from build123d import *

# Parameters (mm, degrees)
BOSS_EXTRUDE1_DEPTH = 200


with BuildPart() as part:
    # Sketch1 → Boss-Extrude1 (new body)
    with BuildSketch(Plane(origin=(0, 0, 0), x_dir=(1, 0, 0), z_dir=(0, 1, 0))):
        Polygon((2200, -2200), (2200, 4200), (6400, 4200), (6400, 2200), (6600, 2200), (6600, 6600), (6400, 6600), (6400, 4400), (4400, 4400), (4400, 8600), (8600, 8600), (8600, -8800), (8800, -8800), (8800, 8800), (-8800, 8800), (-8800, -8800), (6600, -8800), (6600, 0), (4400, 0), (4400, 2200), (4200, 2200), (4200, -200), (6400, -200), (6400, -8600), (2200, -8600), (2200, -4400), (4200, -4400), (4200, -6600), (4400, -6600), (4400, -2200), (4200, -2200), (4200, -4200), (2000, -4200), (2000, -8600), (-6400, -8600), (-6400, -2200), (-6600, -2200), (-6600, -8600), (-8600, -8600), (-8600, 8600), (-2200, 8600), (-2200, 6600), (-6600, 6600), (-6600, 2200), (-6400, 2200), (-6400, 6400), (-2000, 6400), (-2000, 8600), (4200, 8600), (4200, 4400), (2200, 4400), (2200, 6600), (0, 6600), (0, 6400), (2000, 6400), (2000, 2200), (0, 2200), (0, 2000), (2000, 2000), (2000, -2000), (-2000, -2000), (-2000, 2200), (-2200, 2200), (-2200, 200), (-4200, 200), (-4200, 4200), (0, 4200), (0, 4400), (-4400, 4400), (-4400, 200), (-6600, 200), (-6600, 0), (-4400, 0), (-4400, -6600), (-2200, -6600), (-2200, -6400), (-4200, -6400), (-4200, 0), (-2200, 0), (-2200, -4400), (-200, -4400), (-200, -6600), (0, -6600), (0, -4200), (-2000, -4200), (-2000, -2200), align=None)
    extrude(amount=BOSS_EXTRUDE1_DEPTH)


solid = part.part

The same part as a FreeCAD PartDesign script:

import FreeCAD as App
import Part
import Sketcher

V = App.Vector

doc = App.newDocument("Part")
body = doc.addObject("PartDesign::Body", "Body")

sketch1 = doc.addObject("Sketcher::SketchObject", "Sketch")
body.addObject(sketch1)
sketch1.AttachmentSupport = (doc.XZ_Plane, [""])
sketch1.MapMode = "FlatFace"
sketch1.addGeometry(Part.LineSegment(V(2200, 2200, 0), V(2200, -4200, 0)), False)
sketch1.addGeometry(Part.LineSegment(V(2200, -4200, 0), V(6400, -4200, 0)), False)
sketch1.addGeometry(Part.LineSegment(V(6400, -4200, 0), V(6400, -2200, 0)), False)
sketch1.addGeometry(Part.LineSegment(V(6400, -2200, 0), V(6600, -2200, 0)), False)
sketch1.addGeometry(Part.LineSegment(V(6600, -2200, 0), V(6600, -6600, 0)), False)
sketch1.addGeometry(Part.LineSegment(V(6600, -6600, 0), V(6400, -6600, 0)), False)
sketch1.addGeometry(Part.LineSegment(V(6400, -6600, 0), V(6400, -4400, 0)), False)
sketch1.addGeometry(Part.LineSegment(V(6400, -4400, 0), V(4400, -4400, 0)), False)
sketch1.addGeometry(Part.LineSegment(V(4400, -4400, 0), V(4400, -8600, 0)), False)
sketch1.addGeometry(Part.LineSegment(V(4400, -8600, 0), V(8600, -8600, 0)), False)
sketch1.addGeometry(Part.LineSegment(V(8600, -8600, 0), V(8600, 8800, 0)), False)
sketch1.addGeometry(Part.LineSegment(V(8600, 8800, 0), V(8800, 8800, 0)), False)
sketch1.addGeometry(Part.LineSegment(V(8800, 8800, 0), V(8800, -8800, 0)), False)
sketch1.addGeometry(Part.LineSegment(V(8800, -8800, 0), V(-8800, -8800, 0)), False)
sketch1.addGeometry(Part.LineSegment(V(-8800, -8800, 0), V(-8800, 8800, 0)), False)
sketch1.addGeometry(Part.LineSegment(V(-8800, 8800, 0), V(6600, 8800, 0)), False)
sketch1.addGeometry(Part.LineSegment(V(6600, 8800, 0), V(6600, 0, 0)), False)
sketch1.addGeometry(Part.LineSegment(V(6600, 0, 0), V(4400, 0, 0)), False)
sketch1.addGeometry(Part.LineSegment(V(4400, 0, 0), V(4400, -2200, 0)), False)
sketch1.addGeometry(Part.LineSegment(V(4400, -2200, 0), V(4200, -2200, 0)), False)
sketch1.addGeometry(Part.LineSegment(V(4200, -2200, 0), V(4200, 200, 0)), False)
sketch1.addGeometry(Part.LineSegment(V(4200, 200, 0), V(6400, 200, 0)), False)
sketch1.addGeometry(Part.LineSegment(V(6400, 200, 0), V(6400, 8600, 0)), False)
sketch1.addGeometry(Part.LineSegment(V(6400, 8600, 0), V(2200, 8600, 0)), False)
sketch1.addGeometry(Part.LineSegment(V(2200, 8600, 0), V(2200, 4400, 0)), False)
sketch1.addGeometry(Part.LineSegment(V(2200, 4400, 0), V(4200, 4400, 0)), False)
sketch1.addGeometry(Part.LineSegment(V(4200, 4400, 0), V(4200, 6600, 0)), False)
sketch1.addGeometry(Part.LineSegment(V(4200, 6600, 0), V(4400, 6600, 0)), False)
sketch1.addGeometry(Part.LineSegment(V(4400, 6600, 0), V(4400, 2200, 0)), False)
sketch1.addGeometry(Part.LineSegment(V(4400, 2200, 0), V(4200, 2200, 0)), False)
sketch1.addGeometry(Part.LineSegment(V(4200, 2200, 0), V(4200, 4200, 0)), False)
sketch1.addGeometry(Part.LineSegment(V(4200, 4200, 0), V(2000, 4200, 0)), False)
sketch1.addGeometry(Part.LineSegment(V(2000, 4200, 0), V(2000, 8600, 0)), False)
sketch1.addGeometry(Part.LineSegment(V(2000, 8600, 0), V(-6400, 8600, 0)), False)
sketch1.addGeometry(Part.LineSegment(V(-6400, 8600, 0), V(-6400, 2200, 0)), False)
sketch1.addGeometry(Part.LineSegment(V(-6400, 2200, 0), V(-6600, 2200, 0)), False)
sketch1.addGeometry(Part.LineSegment(V(-6600, 2200, 0), V(-6600, 8600, 0)), False)
sketch1.addGeometry(Part.LineSegment(V(-6600, 8600, 0), V(-8600, 8600, 0)), False)
sketch1.addGeometry(Part.LineSegment(V(-8600, 8600, 0), V(-8600, -8600, 0)), False)
sketch1.addGeometry(Part.LineSegment(V(-8600, -8600, 0), V(-2200, -8600, 0)), False)
sketch1.addGeometry(Part.LineSegment(V(-2200, -8600, 0), V(-2200, -6600, 0)), False)
sketch1.addGeometry(Part.LineSegment(V(-2200, -6600, 0), V(-6600, -6600, 0)), False)
sketch1.addGeometry(Part.LineSegment(V(-6600, -6600, 0), V(-6600, -2200, 0)), False)
sketch1.addGeometry(Part.LineSegment(V(-6600, -2200, 0), V(-6400, -2200, 0)), False)
sketch1.addGeometry(Part.LineSegment(V(-6400, -2200, 0), V(-6400, -6400, 0)), False)
sketch1.addGeometry(Part.LineSegment(V(-6400, -6400, 0), V(-2000, -6400, 0)), False)
sketch1.addGeometry(Part.LineSegment(V(-2000, -6400, 0), V(-2000, -8600, 0)), False)
sketch1.addGeometry(Part.LineSegment(V(-2000, -8600, 0), V(4200, -8600, 0)), False)
sketch1.addGeometry(Part.LineSegment(V(4200, -8600, 0), V(4200, -4400, 0)), False)
sketch1.addGeometry(Part.LineSegment(V(4200, -4400, 0), V(2200, -4400, 0)), False)
sketch1.addGeometry(Part.LineSegment(V(2200, -4400, 0), V(2200, -6600, 0)), False)
sketch1.addGeometry(Part.LineSegment(V(2200, -6600, 0), V(0, -6600, 0)), False)
sketch1.addGeometry(Part.LineSegment(V(0, -6600, 0), V(0, -6400, 0)), False)
sketch1.addGeometry(Part.LineSegment(V(0, -6400, 0), V(2000, -6400, 0)), False)
sketch1.addGeometry(Part.LineSegment(V(2000, -6400, 0), V(2000, -2200, 0)), False)
sketch1.addGeometry(Part.LineSegment(V(2000, -2200, 0), V(0, -2200, 0)), False)
sketch1.addGeometry(Part.LineSegment(V(0, -2200, 0), V(0, -2000, 0)), False)
sketch1.addGeometry(Part.LineSegment(V(0, -2000, 0), V(2000, -2000, 0)), False)
sketch1.addGeometry(Part.LineSegment(V(2000, -2000, 0), V(2000, 2000, 0)), False)
sketch1.addGeometry(Part.LineSegment(V(2000, 2000, 0), V(-2000, 2000, 0)), False)
sketch1.addGeometry(Part.LineSegment(V(-2000, 2000, 0), V(-2000, -2200, 0)), False)
sketch1.addGeometry(Part.LineSegment(V(-2000, -2200, 0), V(-2200, -2200, 0)), False)
sketch1.addGeometry(Part.LineSegment(V(-2200, -2200, 0), V(-2200, -200, 0)), False)
sketch1.addGeometry(Part.LineSegment(V(-2200, -200, 0), V(-4200, -200, 0)), False)
sketch1.addGeometry(Part.LineSegment(V(-4200, -200, 0), V(-4200, -4200, 0)), False)
sketch1.addGeometry(Part.LineSegment(V(-4200, -4200, 0), V(0, -4200, 0)), False)
sketch1.addGeometry(Part.LineSegment(V(0, -4200, 0), V(0, -4400, 0)), False)
sketch1.addGeometry(Part.LineSegment(V(0, -4400, 0), V(-4400, -4400, 0)), False)
sketch1.addGeometry(Part.LineSegment(V(-4400, -4400, 0), V(-4400, -200, 0)), False)
sketch1.addGeometry(Part.LineSegment(V(-4400, -200, 0), V(-6600, -200, 0)), False)
sketch1.addGeometry(Part.LineSegment(V(-6600, -200, 0), V(-6600, 0, 0)), False)
sketch1.addGeometry(Part.LineSegment(V(-6600, 0, 0), V(-4400, 0, 0)), False)
sketch1.addGeometry(Part.LineSegment(V(-4400, 0, 0), V(-4400, 6600, 0)), False)
sketch1.addGeometry(Part.LineSegment(V(-4400, 6600, 0), V(-2200, 6600, 0)), False)
sketch1.addGeometry(Part.LineSegment(V(-2200, 6600, 0), V(-2200, 6400, 0)), False)
sketch1.addGeometry(Part.LineSegment(V(-2200, 6400, 0), V(-4200, 6400, 0)), False)
sketch1.addGeometry(Part.LineSegment(V(-4200, 6400, 0), V(-4200, 0, 0)), False)
sketch1.addGeometry(Part.LineSegment(V(-4200, 0, 0), V(-2200, 0, 0)), False)
sketch1.addGeometry(Part.LineSegment(V(-2200, 0, 0), V(-2200, 4400, 0)), False)
sketch1.addGeometry(Part.LineSegment(V(-2200, 4400, 0), V(-200, 4400, 0)), False)
sketch1.addGeometry(Part.LineSegment(V(-200, 4400, 0), V(-200, 6600, 0)), False)
sketch1.addGeometry(Part.LineSegment(V(-200, 6600, 0), V(0, 6600, 0)), False)
sketch1.addGeometry(Part.LineSegment(V(0, 6600, 0), V(0, 4200, 0)), False)
sketch1.addGeometry(Part.LineSegment(V(0, 4200, 0), V(-2000, 4200, 0)), False)
sketch1.addGeometry(Part.LineSegment(V(-2000, 4200, 0), V(-2000, 2200, 0)), False)
sketch1.addGeometry(Part.LineSegment(V(-2000, 2200, 0), V(2200, 2200, 0)), False)
sketch1.addConstraint(Sketcher.Constraint("Coincident", 0, 2, 1, 1))
sketch1.addConstraint(Sketcher.Constraint("Coincident", 1, 2, 2, 1))
sketch1.addConstraint(Sketcher.Constraint("Coincident", 2, 2, 3, 1))
sketch1.addConstraint(Sketcher.Constraint("Coincident", 3, 2, 4, 1))
sketch1.addConstraint(Sketcher.Constraint("Coincident", 4, 2, 5, 1))
sketch1.addConstraint(Sketcher.Constraint("Coincident", 5, 2, 6, 1))
sketch1.addConstraint(Sketcher.Constraint("Coincident", 6, 2, 7, 1))
sketch1.addConstraint(Sketcher.Constraint("Coincident", 7, 2, 8, 1))
sketch1.addConstraint(Sketcher.Constraint("Coincident", 8, 2, 9, 1))
sketch1.addConstraint(Sketcher.Constraint("Coincident", 9, 2, 10, 1))
sketch1.addConstraint(Sketcher.Constraint("Coincident", 10, 2, 11, 1))
sketch1.addConstraint(Sketcher.Constraint("Coincident", 11, 2, 12, 1))
sketch1.addConstraint(Sketcher.Constraint("Coincident", 12, 2, 13, 1))
sketch1.addConstraint(Sketcher.Constraint("Coincident", 13, 2, 14, 1))
sketch1.addConstraint(Sketcher.Constraint("Coincident", 14, 2, 15, 1))
sketch1.addConstraint(Sketcher.Constraint("Coincident", 15, 2, 16, 1))
sketch1.addConstraint(Sketcher.Constraint("Coincident", 16, 2, 17, 1))
sketch1.addConstraint(Sketcher.Constraint("Coincident", 17, 2, 18, 1))
sketch1.addConstraint(Sketcher.Constraint("Coincident", 18, 2, 19, 1))
sketch1.addConstraint(Sketcher.Constraint("Coincident", 19, 2, 20, 1))
sketch1.addConstraint(Sketcher.Constraint("Coincident", 20, 2, 21, 1))
sketch1.addConstraint(Sketcher.Constraint("Coincident", 21, 2, 22, 1))
sketch1.addConstraint(Sketcher.Constraint("Coincident", 22, 2, 23, 1))
sketch1.addConstraint(Sketcher.Constraint("Coincident", 23, 2, 24, 1))
sketch1.addConstraint(Sketcher.Constraint("Coincident", 24, 2, 25, 1))
sketch1.addConstraint(Sketcher.Constraint("Coincident", 25, 2, 26, 1))
sketch1.addConstraint(Sketcher.Constraint("Coincident", 26, 2, 27, 1))
sketch1.addConstraint(Sketcher.Constraint("Coincident", 27, 2, 28, 1))
sketch1.addConstraint(Sketcher.Constraint("Coincident", 28, 2, 29, 1))
sketch1.addConstraint(Sketcher.Constraint("Coincident", 29, 2, 30, 1))
sketch1.addConstraint(Sketcher.Constraint("Coincident", 30, 2, 31, 1))
sketch1.addConstraint(Sketcher.Constraint("Coincident", 31, 2, 32, 1))
sketch1.addConstraint(Sketcher.Constraint("Coincident", 32, 2, 33, 1))
sketch1.addConstraint(Sketcher.Constraint("Coincident", 33, 2, 34, 1))
sketch1.addConstraint(Sketcher.Constraint("Coincident", 34, 2, 35, 1))
sketch1.addConstraint(Sketcher.Constraint("Coincident", 35, 2, 36, 1))
sketch1.addConstraint(Sketcher.Constraint("Coincident", 36, 2, 37, 1))
sketch1.addConstraint(Sketcher.Constraint("Coincident", 37, 2, 38, 1))
sketch1.addConstraint(Sketcher.Constraint("Coincident", 38, 2, 39, 1))
sketch1.addConstraint(Sketcher.Constraint("Coincident", 39, 2, 40, 1))
sketch1.addConstraint(Sketcher.Constraint("Coincident", 40, 2, 41, 1))
sketch1.addConstraint(Sketcher.Constraint("Coincident", 41, 2, 42, 1))
sketch1.addConstraint(Sketcher.Constraint("Coincident", 42, 2, 43, 1))
sketch1.addConstraint(Sketcher.Constraint("Coincident", 43, 2, 44, 1))
sketch1.addConstraint(Sketcher.Constraint("Coincident", 44, 2, 45, 1))
sketch1.addConstraint(Sketcher.Constraint("Coincident", 45, 2, 46, 1))
sketch1.addConstraint(Sketcher.Constraint("Coincident", 46, 2, 47, 1))
sketch1.addConstraint(Sketcher.Constraint("Coincident", 47, 2, 48, 1))
sketch1.addConstraint(Sketcher.Constraint("Coincident", 48, 2, 49, 1))
sketch1.addConstraint(Sketcher.Constraint("Coincident", 49, 2, 50, 1))
sketch1.addConstraint(Sketcher.Constraint("Coincident", 50, 2, 51, 1))
sketch1.addConstraint(Sketcher.Constraint("Coincident", 51, 2, 52, 1))
sketch1.addConstraint(Sketcher.Constraint("Coincident", 52, 2, 53, 1))
sketch1.addConstraint(Sketcher.Constraint("Coincident", 53, 2, 54, 1))
sketch1.addConstraint(Sketcher.Constraint("Coincident", 54, 2, 55, 1))
sketch1.addConstraint(Sketcher.Constraint("Coincident", 55, 2, 56, 1))
sketch1.addConstraint(Sketcher.Constraint("Coincident", 56, 2, 57, 1))
sketch1.addConstraint(Sketcher.Constraint("Coincident", 57, 2, 58, 1))
sketch1.addConstraint(Sketcher.Constraint("Coincident", 58, 2, 59, 1))
sketch1.addConstraint(Sketcher.Constraint("Coincident", 59, 2, 60, 1))
sketch1.addConstraint(Sketcher.Constraint("Coincident", 60, 2, 61, 1))
sketch1.addConstraint(Sketcher.Constraint("Coincident", 61, 2, 62, 1))
sketch1.addConstraint(Sketcher.Constraint("Coincident", 62, 2, 63, 1))
sketch1.addConstraint(Sketcher.Constraint("Coincident", 63, 2, 64, 1))
sketch1.addConstraint(Sketcher.Constraint("Coincident", 64, 2, 65, 1))
sketch1.addConstraint(Sketcher.Constraint("Coincident", 65, 2, 66, 1))
sketch1.addConstraint(Sketcher.Constraint("Coincident", 66, 2, 67, 1))
sketch1.addConstraint(Sketcher.Constraint("Coincident", 67, 2, 68, 1))
sketch1.addConstraint(Sketcher.Constraint("Coincident", 68, 2, 69, 1))
sketch1.addConstraint(Sketcher.Constraint("Coincident", 69, 2, 70, 1))
sketch1.addConstraint(Sketcher.Constraint("Coincident", 70, 2, 71, 1))
sketch1.addConstraint(Sketcher.Constraint("Coincident", 71, 2, 72, 1))
sketch1.addConstraint(Sketcher.Constraint("Coincident", 72, 2, 73, 1))
sketch1.addConstraint(Sketcher.Constraint("Coincident", 73, 2, 74, 1))
sketch1.addConstraint(Sketcher.Constraint("Coincident", 74, 2, 75, 1))
sketch1.addConstraint(Sketcher.Constraint("Coincident", 75, 2, 76, 1))
sketch1.addConstraint(Sketcher.Constraint("Coincident", 76, 2, 77, 1))
sketch1.addConstraint(Sketcher.Constraint("Coincident", 77, 2, 78, 1))
sketch1.addConstraint(Sketcher.Constraint("Coincident", 78, 2, 79, 1))
sketch1.addConstraint(Sketcher.Constraint("Coincident", 79, 2, 80, 1))
sketch1.addConstraint(Sketcher.Constraint("Coincident", 80, 2, 81, 1))
sketch1.addConstraint(Sketcher.Constraint("Coincident", 81, 2, 82, 1))
sketch1.addConstraint(Sketcher.Constraint("Coincident", 82, 2, 83, 1))
sketch1.addConstraint(Sketcher.Constraint("Coincident", 83, 2, 84, 1))
sketch1.addConstraint(Sketcher.Constraint("Coincident", 84, 2, 85, 1))
sketch1.addConstraint(Sketcher.Constraint("Coincident", 85, 2, 0, 1))
sketch1.addConstraint(Sketcher.Constraint("Vertical", 0))
sketch1.addConstraint(Sketcher.Constraint("Horizontal", 1))
sketch1.addConstraint(Sketcher.Constraint("Vertical", 2))
sketch1.addConstraint(Sketcher.Constraint("Horizontal", 3))
sketch1.addConstraint(Sketcher.Constraint("Vertical", 4))
sketch1.addConstraint(Sketcher.Constraint("Horizontal", 5))
sketch1.addConstraint(Sketcher.Constraint("Vertical", 6))
sketch1.addConstraint(Sketcher.Constraint("Horizontal", 7))
sketch1.addConstraint(Sketcher.Constraint("Vertical", 8))
sketch1.addConstraint(Sketcher.Constraint("Horizontal", 9))
sketch1.addConstraint(Sketcher.Constraint("Vertical", 10))
sketch1.addConstraint(Sketcher.Constraint("Horizontal", 11))
sketch1.addConstraint(Sketcher.Constraint("Vertical", 12))
sketch1.addConstraint(Sketcher.Constraint("Horizontal", 13))
sketch1.addConstraint(Sketcher.Constraint("Vertical", 14))
sketch1.addConstraint(Sketcher.Constraint("Horizontal", 15))
sketch1.addConstraint(Sketcher.Constraint("Vertical", 16))
sketch1.addConstraint(Sketcher.Constraint("Horizontal", 17))
sketch1.addConstraint(Sketcher.Constraint("Vertical", 18))
sketch1.addConstraint(Sketcher.Constraint("Horizontal", 19))
sketch1.addConstraint(Sketcher.Constraint("Vertical", 20))
sketch1.addConstraint(Sketcher.Constraint("Horizontal", 21))
sketch1.addConstraint(Sketcher.Constraint("Vertical", 22))
sketch1.addConstraint(Sketcher.Constraint("Horizontal", 23))
sketch1.addConstraint(Sketcher.Constraint("Vertical", 24))
sketch1.addConstraint(Sketcher.Constraint("Horizontal", 25))
sketch1.addConstraint(Sketcher.Constraint("Vertical", 26))
sketch1.addConstraint(Sketcher.Constraint("Horizontal", 27))
sketch1.addConstraint(Sketcher.Constraint("Vertical", 28))
sketch1.addConstraint(Sketcher.Constraint("Horizontal", 29))
sketch1.addConstraint(Sketcher.Constraint("Vertical", 30))
sketch1.addConstraint(Sketcher.Constraint("Horizontal", 31))
sketch1.addConstraint(Sketcher.Constraint("Vertical", 32))
sketch1.addConstraint(Sketcher.Constraint("Horizontal", 33))
sketch1.addConstraint(Sketcher.Constraint("Vertical", 34))
sketch1.addConstraint(Sketcher.Constraint("Horizontal", 35))
sketch1.addConstraint(Sketcher.Constraint("Vertical", 36))
sketch1.addConstraint(Sketcher.Constraint("Horizontal", 37))
sketch1.addConstraint(Sketcher.Constraint("Vertical", 38))
sketch1.addConstraint(Sketcher.Constraint("Horizontal", 39))
sketch1.addConstraint(Sketcher.Constraint("Vertical", 40))
sketch1.addConstraint(Sketcher.Constraint("Horizontal", 41))
sketch1.addConstraint(Sketcher.Constraint("Vertical", 42))
sketch1.addConstraint(Sketcher.Constraint("Horizontal", 43))
sketch1.addConstraint(Sketcher.Constraint("Vertical", 44))
sketch1.addConstraint(Sketcher.Constraint("Horizontal", 45))
sketch1.addConstraint(Sketcher.Constraint("Vertical", 46))
sketch1.addConstraint(Sketcher.Constraint("Horizontal", 47))
sketch1.addConstraint(Sketcher.Constraint("Vertical", 48))
sketch1.addConstraint(Sketcher.Constraint("Horizontal", 49))
sketch1.addConstraint(Sketcher.Constraint("Vertical", 50))
sketch1.addConstraint(Sketcher.Constraint("Horizontal", 51))
sketch1.addConstraint(Sketcher.Constraint("Vertical", 52))
sketch1.addConstraint(Sketcher.Constraint("Horizontal", 53))
sketch1.addConstraint(Sketcher.Constraint("Vertical", 54))
sketch1.addConstraint(Sketcher.Constraint("Horizontal", 55))
sketch1.addConstraint(Sketcher.Constraint("Vertical", 56))
sketch1.addConstraint(Sketcher.Constraint("Horizontal", 57))
sketch1.addConstraint(Sketcher.Constraint("Vertical", 58))
sketch1.addConstraint(Sketcher.Constraint("Horizontal", 59))
sketch1.addConstraint(Sketcher.Constraint("Vertical", 60))
sketch1.addConstraint(Sketcher.Constraint("Horizontal", 61))
sketch1.addConstraint(Sketcher.Constraint("Vertical", 62))
sketch1.addConstraint(Sketcher.Constraint("Horizontal", 63))
sketch1.addConstraint(Sketcher.Constraint("Vertical", 64))
sketch1.addConstraint(Sketcher.Constraint("Horizontal", 65))
sketch1.addConstraint(Sketcher.Constraint("Vertical", 66))
sketch1.addConstraint(Sketcher.Constraint("Horizontal", 67))
sketch1.addConstraint(Sketcher.Constraint("Vertical", 68))
sketch1.addConstraint(Sketcher.Constraint("Horizontal", 69))
sketch1.addConstraint(Sketcher.Constraint("Vertical", 70))
sketch1.addConstraint(Sketcher.Constraint("Horizontal", 71))
sketch1.addConstraint(Sketcher.Constraint("Vertical", 72))
sketch1.addConstraint(Sketcher.Constraint("Horizontal", 73))
sketch1.addConstraint(Sketcher.Constraint("Vertical", 74))
sketch1.addConstraint(Sketcher.Constraint("Horizontal", 75))
sketch1.addConstraint(Sketcher.Constraint("Vertical", 76))
sketch1.addConstraint(Sketcher.Constraint("Horizontal", 77))
sketch1.addConstraint(Sketcher.Constraint("Vertical", 78))
sketch1.addConstraint(Sketcher.Constraint("Horizontal", 79))
sketch1.addConstraint(Sketcher.Constraint("Vertical", 80))
sketch1.addConstraint(Sketcher.Constraint("Horizontal", 81))
sketch1.addConstraint(Sketcher.Constraint("Vertical", 82))
sketch1.addConstraint(Sketcher.Constraint("Horizontal", 83))
sketch1.addConstraint(Sketcher.Constraint("Vertical", 84))
sketch1.addConstraint(Sketcher.Constraint("Horizontal", 85))
sketch1.addConstraint(Sketcher.Constraint("Symmetric", 11, 2, 13, 2, -1, 1))
sketch1.addConstraint(Sketcher.Constraint("Symmetric", 2, 2, 34, 2, -1, 1))
sketch1.addConstraint(Sketcher.Constraint("Symmetric", 9, 2, 37, 2, -1, 1))
sketch1.addConstraint(Sketcher.Constraint("Symmetric", 23, 2, 39, 2, -1, 1))
sketch1.addConstraint(Sketcher.Constraint("Symmetric", 32, 2, 46, 2, -1, 1))
sketch1.addConstraint(Sketcher.Constraint("Symmetric", 57, 2, 59, 2, -1, 1))
sketch1.addConstraint(Sketcher.Constraint("Symmetric", 20, 2, 63, 2, -1, 1))
sketch1.addConstraint(Sketcher.Constraint("Symmetric", 30, 2, 64, 2, -1, 1))
sketch1.addConstraint(Sketcher.Constraint("Symmetric", 16, 2, 70, 2, -1, 1))
sketch1.addConstraint(Sketcher.Constraint("Symmetric", 50, 2, 73, 2, -1, 1))
sketch1.addConstraint(Sketcher.Constraint("Symmetric", 49, 2, 78, 2, -1, 1))
sketch1.addConstraint(Sketcher.Constraint("Symmetric", 51, 2, 81, 2, -1, 1))
sketch1.addConstraint(Sketcher.Constraint("Symmetric", 65, 2, 82, 2, -1, 1))
sketch1.addConstraint(Sketcher.Constraint("Symmetric", 54, 2, 84, 2, -1, 1))
sketch1.addConstraint(Sketcher.Constraint("Symmetric", 61, 2, 85, 2, -1, 1))
sketch1.addConstraint(Sketcher.Constraint("Symmetric", 22, 2, 33, 2, -2))
sketch1.addConstraint(Sketcher.Constraint("Symmetric", 4, 2, 41, 2, -2))
sketch1.addConstraint(Sketcher.Constraint("Symmetric", 2, 2, 43, 2, -2))
sketch1.addConstraint(Sketcher.Constraint("Symmetric", 40, 2, 50, 2, -2))
sketch1.addConstraint(Sketcher.Constraint("Symmetric", 45, 2, 53, 2, -2))
sketch1.addConstraint(Sketcher.Constraint("Symmetric", 7, 2, 67, 2, -2))
sketch1.addConstraint(Sketcher.Constraint("Symmetric", 17, 2, 71, 2, -2))
sketch1.addConstraint(Sketcher.Constraint("Symmetric", 27, 2, 72, 2, -2))
sketch1.addConstraint(Sketcher.Constraint("Symmetric", 25, 2, 48, 2, -1))
sketch1.addConstraint(Sketcher.Constraint("PointOnObject", 51, 2, -2))
sketch1.addConstraint(Sketcher.Constraint("PointOnObject", 55, 2, -2))
sketch1.addConstraint(Sketcher.Constraint("PointOnObject", 76, 2, -1))
sketch1.addConstraint(Sketcher.Constraint("Horizontal", 11, 2, 14, 2))
sketch1.addConstraint(Sketcher.Constraint("Horizontal", 3, 2, 18, 2))
sketch1.addConstraint(Sketcher.Constraint("Horizontal", 29, 2, 34, 2))
sketch1.addConstraint(Sketcher.Constraint("Horizontal", 33, 2, 36, 2))
sketch1.addConstraint(Sketcher.Constraint("Horizontal", 7, 2, 48, 2))
sketch1.addConstraint(Sketcher.Constraint("Horizontal", 43, 2, 54, 2))
sketch1.addConstraint(Sketcher.Constraint("Horizontal", 1, 2, 64, 2))
sketch1.addConstraint(Sketcher.Constraint("Horizontal", 63, 2, 68, 2))
sketch1.addConstraint(Sketcher.Constraint("Vertical", 2, 2, 5, 2))
sketch1.addConstraint(Sketcher.Constraint("Vertical", 4, 2, 15, 2))
sketch1.addConstraint(Sketcher.Constraint("Vertical", 8, 2, 17, 2))
sketch1.addConstraint(Sketcher.Constraint("Vertical", 0, 2, 23, 2))
sketch1.addConstraint(Sketcher.Constraint("Vertical", 20, 2, 25, 2))
sketch1.addConstraint(Sketcher.Constraint("Vertical", 36, 2, 41, 2))
sketch1.addConstraint(Sketcher.Constraint("Vertical", 54, 2, 57, 2))
sketch1.addConstraint(Sketcher.Constraint("Vertical", 64, 2, 75, 2))
sketch1.addConstraint(Sketcher.Constraint("Equal", 1, 9))
sketch1.addConstraint(Sketcher.Constraint("Equal", 5, 11))
sketch1.addConstraint(Sketcher.Constraint("Equal", 11, 19))
sketch1.addConstraint(Sketcher.Constraint("Equal", 7, 25))
sketch1.addConstraint(Sketcher.Constraint("Equal", 21, 31))
sketch1.addConstraint(Sketcher.Constraint("Equal", 31, 51))
sketch1.addConstraint(Sketcher.Constraint("Equal", 77, 79))
sketch1.addConstraint(Sketcher.Constraint("Equal", 39, 0))
sketch1.addConstraint(Sketcher.Constraint("Equal", 83, 2))
sketch1.addConstraint(Sketcher.Constraint("Equal", 67, 4))
sketch1.addConstraint(Sketcher.Constraint("Equal", 73, 6))
sketch1.addConstraint(Sketcher.Constraint("Equal", 85, 8))
sketch1.addConstraint(Sketcher.Constraint("Equal", 13, 12))
sketch1.addConstraint(Sketcher.Constraint("Equal", 33, 22))
sketch1.addConstraint(Sketcher.Constraint("Equal", 24, 44))
sketch1.addConstraint(Sketcher.Constraint("Equal", 52, 56))
sketch1.addConstraint(Sketcher.Constraint("Equal", 70, 74))
sketch1.addConstraint(Sketcher.Constraint("DistanceX", 1, 1, 1, 2, 4200.0))
sketch1.addConstraint(Sketcher.Constraint("DistanceX", 3, 1, 3, 2, 200.0))
pad1 = doc.addObject("PartDesign::Pad", "Pad")
body.addObject(pad1)
pad1.Profile = sketch1
pad1.Length = 200
pad1.Reversed = True

doc.recompute()
